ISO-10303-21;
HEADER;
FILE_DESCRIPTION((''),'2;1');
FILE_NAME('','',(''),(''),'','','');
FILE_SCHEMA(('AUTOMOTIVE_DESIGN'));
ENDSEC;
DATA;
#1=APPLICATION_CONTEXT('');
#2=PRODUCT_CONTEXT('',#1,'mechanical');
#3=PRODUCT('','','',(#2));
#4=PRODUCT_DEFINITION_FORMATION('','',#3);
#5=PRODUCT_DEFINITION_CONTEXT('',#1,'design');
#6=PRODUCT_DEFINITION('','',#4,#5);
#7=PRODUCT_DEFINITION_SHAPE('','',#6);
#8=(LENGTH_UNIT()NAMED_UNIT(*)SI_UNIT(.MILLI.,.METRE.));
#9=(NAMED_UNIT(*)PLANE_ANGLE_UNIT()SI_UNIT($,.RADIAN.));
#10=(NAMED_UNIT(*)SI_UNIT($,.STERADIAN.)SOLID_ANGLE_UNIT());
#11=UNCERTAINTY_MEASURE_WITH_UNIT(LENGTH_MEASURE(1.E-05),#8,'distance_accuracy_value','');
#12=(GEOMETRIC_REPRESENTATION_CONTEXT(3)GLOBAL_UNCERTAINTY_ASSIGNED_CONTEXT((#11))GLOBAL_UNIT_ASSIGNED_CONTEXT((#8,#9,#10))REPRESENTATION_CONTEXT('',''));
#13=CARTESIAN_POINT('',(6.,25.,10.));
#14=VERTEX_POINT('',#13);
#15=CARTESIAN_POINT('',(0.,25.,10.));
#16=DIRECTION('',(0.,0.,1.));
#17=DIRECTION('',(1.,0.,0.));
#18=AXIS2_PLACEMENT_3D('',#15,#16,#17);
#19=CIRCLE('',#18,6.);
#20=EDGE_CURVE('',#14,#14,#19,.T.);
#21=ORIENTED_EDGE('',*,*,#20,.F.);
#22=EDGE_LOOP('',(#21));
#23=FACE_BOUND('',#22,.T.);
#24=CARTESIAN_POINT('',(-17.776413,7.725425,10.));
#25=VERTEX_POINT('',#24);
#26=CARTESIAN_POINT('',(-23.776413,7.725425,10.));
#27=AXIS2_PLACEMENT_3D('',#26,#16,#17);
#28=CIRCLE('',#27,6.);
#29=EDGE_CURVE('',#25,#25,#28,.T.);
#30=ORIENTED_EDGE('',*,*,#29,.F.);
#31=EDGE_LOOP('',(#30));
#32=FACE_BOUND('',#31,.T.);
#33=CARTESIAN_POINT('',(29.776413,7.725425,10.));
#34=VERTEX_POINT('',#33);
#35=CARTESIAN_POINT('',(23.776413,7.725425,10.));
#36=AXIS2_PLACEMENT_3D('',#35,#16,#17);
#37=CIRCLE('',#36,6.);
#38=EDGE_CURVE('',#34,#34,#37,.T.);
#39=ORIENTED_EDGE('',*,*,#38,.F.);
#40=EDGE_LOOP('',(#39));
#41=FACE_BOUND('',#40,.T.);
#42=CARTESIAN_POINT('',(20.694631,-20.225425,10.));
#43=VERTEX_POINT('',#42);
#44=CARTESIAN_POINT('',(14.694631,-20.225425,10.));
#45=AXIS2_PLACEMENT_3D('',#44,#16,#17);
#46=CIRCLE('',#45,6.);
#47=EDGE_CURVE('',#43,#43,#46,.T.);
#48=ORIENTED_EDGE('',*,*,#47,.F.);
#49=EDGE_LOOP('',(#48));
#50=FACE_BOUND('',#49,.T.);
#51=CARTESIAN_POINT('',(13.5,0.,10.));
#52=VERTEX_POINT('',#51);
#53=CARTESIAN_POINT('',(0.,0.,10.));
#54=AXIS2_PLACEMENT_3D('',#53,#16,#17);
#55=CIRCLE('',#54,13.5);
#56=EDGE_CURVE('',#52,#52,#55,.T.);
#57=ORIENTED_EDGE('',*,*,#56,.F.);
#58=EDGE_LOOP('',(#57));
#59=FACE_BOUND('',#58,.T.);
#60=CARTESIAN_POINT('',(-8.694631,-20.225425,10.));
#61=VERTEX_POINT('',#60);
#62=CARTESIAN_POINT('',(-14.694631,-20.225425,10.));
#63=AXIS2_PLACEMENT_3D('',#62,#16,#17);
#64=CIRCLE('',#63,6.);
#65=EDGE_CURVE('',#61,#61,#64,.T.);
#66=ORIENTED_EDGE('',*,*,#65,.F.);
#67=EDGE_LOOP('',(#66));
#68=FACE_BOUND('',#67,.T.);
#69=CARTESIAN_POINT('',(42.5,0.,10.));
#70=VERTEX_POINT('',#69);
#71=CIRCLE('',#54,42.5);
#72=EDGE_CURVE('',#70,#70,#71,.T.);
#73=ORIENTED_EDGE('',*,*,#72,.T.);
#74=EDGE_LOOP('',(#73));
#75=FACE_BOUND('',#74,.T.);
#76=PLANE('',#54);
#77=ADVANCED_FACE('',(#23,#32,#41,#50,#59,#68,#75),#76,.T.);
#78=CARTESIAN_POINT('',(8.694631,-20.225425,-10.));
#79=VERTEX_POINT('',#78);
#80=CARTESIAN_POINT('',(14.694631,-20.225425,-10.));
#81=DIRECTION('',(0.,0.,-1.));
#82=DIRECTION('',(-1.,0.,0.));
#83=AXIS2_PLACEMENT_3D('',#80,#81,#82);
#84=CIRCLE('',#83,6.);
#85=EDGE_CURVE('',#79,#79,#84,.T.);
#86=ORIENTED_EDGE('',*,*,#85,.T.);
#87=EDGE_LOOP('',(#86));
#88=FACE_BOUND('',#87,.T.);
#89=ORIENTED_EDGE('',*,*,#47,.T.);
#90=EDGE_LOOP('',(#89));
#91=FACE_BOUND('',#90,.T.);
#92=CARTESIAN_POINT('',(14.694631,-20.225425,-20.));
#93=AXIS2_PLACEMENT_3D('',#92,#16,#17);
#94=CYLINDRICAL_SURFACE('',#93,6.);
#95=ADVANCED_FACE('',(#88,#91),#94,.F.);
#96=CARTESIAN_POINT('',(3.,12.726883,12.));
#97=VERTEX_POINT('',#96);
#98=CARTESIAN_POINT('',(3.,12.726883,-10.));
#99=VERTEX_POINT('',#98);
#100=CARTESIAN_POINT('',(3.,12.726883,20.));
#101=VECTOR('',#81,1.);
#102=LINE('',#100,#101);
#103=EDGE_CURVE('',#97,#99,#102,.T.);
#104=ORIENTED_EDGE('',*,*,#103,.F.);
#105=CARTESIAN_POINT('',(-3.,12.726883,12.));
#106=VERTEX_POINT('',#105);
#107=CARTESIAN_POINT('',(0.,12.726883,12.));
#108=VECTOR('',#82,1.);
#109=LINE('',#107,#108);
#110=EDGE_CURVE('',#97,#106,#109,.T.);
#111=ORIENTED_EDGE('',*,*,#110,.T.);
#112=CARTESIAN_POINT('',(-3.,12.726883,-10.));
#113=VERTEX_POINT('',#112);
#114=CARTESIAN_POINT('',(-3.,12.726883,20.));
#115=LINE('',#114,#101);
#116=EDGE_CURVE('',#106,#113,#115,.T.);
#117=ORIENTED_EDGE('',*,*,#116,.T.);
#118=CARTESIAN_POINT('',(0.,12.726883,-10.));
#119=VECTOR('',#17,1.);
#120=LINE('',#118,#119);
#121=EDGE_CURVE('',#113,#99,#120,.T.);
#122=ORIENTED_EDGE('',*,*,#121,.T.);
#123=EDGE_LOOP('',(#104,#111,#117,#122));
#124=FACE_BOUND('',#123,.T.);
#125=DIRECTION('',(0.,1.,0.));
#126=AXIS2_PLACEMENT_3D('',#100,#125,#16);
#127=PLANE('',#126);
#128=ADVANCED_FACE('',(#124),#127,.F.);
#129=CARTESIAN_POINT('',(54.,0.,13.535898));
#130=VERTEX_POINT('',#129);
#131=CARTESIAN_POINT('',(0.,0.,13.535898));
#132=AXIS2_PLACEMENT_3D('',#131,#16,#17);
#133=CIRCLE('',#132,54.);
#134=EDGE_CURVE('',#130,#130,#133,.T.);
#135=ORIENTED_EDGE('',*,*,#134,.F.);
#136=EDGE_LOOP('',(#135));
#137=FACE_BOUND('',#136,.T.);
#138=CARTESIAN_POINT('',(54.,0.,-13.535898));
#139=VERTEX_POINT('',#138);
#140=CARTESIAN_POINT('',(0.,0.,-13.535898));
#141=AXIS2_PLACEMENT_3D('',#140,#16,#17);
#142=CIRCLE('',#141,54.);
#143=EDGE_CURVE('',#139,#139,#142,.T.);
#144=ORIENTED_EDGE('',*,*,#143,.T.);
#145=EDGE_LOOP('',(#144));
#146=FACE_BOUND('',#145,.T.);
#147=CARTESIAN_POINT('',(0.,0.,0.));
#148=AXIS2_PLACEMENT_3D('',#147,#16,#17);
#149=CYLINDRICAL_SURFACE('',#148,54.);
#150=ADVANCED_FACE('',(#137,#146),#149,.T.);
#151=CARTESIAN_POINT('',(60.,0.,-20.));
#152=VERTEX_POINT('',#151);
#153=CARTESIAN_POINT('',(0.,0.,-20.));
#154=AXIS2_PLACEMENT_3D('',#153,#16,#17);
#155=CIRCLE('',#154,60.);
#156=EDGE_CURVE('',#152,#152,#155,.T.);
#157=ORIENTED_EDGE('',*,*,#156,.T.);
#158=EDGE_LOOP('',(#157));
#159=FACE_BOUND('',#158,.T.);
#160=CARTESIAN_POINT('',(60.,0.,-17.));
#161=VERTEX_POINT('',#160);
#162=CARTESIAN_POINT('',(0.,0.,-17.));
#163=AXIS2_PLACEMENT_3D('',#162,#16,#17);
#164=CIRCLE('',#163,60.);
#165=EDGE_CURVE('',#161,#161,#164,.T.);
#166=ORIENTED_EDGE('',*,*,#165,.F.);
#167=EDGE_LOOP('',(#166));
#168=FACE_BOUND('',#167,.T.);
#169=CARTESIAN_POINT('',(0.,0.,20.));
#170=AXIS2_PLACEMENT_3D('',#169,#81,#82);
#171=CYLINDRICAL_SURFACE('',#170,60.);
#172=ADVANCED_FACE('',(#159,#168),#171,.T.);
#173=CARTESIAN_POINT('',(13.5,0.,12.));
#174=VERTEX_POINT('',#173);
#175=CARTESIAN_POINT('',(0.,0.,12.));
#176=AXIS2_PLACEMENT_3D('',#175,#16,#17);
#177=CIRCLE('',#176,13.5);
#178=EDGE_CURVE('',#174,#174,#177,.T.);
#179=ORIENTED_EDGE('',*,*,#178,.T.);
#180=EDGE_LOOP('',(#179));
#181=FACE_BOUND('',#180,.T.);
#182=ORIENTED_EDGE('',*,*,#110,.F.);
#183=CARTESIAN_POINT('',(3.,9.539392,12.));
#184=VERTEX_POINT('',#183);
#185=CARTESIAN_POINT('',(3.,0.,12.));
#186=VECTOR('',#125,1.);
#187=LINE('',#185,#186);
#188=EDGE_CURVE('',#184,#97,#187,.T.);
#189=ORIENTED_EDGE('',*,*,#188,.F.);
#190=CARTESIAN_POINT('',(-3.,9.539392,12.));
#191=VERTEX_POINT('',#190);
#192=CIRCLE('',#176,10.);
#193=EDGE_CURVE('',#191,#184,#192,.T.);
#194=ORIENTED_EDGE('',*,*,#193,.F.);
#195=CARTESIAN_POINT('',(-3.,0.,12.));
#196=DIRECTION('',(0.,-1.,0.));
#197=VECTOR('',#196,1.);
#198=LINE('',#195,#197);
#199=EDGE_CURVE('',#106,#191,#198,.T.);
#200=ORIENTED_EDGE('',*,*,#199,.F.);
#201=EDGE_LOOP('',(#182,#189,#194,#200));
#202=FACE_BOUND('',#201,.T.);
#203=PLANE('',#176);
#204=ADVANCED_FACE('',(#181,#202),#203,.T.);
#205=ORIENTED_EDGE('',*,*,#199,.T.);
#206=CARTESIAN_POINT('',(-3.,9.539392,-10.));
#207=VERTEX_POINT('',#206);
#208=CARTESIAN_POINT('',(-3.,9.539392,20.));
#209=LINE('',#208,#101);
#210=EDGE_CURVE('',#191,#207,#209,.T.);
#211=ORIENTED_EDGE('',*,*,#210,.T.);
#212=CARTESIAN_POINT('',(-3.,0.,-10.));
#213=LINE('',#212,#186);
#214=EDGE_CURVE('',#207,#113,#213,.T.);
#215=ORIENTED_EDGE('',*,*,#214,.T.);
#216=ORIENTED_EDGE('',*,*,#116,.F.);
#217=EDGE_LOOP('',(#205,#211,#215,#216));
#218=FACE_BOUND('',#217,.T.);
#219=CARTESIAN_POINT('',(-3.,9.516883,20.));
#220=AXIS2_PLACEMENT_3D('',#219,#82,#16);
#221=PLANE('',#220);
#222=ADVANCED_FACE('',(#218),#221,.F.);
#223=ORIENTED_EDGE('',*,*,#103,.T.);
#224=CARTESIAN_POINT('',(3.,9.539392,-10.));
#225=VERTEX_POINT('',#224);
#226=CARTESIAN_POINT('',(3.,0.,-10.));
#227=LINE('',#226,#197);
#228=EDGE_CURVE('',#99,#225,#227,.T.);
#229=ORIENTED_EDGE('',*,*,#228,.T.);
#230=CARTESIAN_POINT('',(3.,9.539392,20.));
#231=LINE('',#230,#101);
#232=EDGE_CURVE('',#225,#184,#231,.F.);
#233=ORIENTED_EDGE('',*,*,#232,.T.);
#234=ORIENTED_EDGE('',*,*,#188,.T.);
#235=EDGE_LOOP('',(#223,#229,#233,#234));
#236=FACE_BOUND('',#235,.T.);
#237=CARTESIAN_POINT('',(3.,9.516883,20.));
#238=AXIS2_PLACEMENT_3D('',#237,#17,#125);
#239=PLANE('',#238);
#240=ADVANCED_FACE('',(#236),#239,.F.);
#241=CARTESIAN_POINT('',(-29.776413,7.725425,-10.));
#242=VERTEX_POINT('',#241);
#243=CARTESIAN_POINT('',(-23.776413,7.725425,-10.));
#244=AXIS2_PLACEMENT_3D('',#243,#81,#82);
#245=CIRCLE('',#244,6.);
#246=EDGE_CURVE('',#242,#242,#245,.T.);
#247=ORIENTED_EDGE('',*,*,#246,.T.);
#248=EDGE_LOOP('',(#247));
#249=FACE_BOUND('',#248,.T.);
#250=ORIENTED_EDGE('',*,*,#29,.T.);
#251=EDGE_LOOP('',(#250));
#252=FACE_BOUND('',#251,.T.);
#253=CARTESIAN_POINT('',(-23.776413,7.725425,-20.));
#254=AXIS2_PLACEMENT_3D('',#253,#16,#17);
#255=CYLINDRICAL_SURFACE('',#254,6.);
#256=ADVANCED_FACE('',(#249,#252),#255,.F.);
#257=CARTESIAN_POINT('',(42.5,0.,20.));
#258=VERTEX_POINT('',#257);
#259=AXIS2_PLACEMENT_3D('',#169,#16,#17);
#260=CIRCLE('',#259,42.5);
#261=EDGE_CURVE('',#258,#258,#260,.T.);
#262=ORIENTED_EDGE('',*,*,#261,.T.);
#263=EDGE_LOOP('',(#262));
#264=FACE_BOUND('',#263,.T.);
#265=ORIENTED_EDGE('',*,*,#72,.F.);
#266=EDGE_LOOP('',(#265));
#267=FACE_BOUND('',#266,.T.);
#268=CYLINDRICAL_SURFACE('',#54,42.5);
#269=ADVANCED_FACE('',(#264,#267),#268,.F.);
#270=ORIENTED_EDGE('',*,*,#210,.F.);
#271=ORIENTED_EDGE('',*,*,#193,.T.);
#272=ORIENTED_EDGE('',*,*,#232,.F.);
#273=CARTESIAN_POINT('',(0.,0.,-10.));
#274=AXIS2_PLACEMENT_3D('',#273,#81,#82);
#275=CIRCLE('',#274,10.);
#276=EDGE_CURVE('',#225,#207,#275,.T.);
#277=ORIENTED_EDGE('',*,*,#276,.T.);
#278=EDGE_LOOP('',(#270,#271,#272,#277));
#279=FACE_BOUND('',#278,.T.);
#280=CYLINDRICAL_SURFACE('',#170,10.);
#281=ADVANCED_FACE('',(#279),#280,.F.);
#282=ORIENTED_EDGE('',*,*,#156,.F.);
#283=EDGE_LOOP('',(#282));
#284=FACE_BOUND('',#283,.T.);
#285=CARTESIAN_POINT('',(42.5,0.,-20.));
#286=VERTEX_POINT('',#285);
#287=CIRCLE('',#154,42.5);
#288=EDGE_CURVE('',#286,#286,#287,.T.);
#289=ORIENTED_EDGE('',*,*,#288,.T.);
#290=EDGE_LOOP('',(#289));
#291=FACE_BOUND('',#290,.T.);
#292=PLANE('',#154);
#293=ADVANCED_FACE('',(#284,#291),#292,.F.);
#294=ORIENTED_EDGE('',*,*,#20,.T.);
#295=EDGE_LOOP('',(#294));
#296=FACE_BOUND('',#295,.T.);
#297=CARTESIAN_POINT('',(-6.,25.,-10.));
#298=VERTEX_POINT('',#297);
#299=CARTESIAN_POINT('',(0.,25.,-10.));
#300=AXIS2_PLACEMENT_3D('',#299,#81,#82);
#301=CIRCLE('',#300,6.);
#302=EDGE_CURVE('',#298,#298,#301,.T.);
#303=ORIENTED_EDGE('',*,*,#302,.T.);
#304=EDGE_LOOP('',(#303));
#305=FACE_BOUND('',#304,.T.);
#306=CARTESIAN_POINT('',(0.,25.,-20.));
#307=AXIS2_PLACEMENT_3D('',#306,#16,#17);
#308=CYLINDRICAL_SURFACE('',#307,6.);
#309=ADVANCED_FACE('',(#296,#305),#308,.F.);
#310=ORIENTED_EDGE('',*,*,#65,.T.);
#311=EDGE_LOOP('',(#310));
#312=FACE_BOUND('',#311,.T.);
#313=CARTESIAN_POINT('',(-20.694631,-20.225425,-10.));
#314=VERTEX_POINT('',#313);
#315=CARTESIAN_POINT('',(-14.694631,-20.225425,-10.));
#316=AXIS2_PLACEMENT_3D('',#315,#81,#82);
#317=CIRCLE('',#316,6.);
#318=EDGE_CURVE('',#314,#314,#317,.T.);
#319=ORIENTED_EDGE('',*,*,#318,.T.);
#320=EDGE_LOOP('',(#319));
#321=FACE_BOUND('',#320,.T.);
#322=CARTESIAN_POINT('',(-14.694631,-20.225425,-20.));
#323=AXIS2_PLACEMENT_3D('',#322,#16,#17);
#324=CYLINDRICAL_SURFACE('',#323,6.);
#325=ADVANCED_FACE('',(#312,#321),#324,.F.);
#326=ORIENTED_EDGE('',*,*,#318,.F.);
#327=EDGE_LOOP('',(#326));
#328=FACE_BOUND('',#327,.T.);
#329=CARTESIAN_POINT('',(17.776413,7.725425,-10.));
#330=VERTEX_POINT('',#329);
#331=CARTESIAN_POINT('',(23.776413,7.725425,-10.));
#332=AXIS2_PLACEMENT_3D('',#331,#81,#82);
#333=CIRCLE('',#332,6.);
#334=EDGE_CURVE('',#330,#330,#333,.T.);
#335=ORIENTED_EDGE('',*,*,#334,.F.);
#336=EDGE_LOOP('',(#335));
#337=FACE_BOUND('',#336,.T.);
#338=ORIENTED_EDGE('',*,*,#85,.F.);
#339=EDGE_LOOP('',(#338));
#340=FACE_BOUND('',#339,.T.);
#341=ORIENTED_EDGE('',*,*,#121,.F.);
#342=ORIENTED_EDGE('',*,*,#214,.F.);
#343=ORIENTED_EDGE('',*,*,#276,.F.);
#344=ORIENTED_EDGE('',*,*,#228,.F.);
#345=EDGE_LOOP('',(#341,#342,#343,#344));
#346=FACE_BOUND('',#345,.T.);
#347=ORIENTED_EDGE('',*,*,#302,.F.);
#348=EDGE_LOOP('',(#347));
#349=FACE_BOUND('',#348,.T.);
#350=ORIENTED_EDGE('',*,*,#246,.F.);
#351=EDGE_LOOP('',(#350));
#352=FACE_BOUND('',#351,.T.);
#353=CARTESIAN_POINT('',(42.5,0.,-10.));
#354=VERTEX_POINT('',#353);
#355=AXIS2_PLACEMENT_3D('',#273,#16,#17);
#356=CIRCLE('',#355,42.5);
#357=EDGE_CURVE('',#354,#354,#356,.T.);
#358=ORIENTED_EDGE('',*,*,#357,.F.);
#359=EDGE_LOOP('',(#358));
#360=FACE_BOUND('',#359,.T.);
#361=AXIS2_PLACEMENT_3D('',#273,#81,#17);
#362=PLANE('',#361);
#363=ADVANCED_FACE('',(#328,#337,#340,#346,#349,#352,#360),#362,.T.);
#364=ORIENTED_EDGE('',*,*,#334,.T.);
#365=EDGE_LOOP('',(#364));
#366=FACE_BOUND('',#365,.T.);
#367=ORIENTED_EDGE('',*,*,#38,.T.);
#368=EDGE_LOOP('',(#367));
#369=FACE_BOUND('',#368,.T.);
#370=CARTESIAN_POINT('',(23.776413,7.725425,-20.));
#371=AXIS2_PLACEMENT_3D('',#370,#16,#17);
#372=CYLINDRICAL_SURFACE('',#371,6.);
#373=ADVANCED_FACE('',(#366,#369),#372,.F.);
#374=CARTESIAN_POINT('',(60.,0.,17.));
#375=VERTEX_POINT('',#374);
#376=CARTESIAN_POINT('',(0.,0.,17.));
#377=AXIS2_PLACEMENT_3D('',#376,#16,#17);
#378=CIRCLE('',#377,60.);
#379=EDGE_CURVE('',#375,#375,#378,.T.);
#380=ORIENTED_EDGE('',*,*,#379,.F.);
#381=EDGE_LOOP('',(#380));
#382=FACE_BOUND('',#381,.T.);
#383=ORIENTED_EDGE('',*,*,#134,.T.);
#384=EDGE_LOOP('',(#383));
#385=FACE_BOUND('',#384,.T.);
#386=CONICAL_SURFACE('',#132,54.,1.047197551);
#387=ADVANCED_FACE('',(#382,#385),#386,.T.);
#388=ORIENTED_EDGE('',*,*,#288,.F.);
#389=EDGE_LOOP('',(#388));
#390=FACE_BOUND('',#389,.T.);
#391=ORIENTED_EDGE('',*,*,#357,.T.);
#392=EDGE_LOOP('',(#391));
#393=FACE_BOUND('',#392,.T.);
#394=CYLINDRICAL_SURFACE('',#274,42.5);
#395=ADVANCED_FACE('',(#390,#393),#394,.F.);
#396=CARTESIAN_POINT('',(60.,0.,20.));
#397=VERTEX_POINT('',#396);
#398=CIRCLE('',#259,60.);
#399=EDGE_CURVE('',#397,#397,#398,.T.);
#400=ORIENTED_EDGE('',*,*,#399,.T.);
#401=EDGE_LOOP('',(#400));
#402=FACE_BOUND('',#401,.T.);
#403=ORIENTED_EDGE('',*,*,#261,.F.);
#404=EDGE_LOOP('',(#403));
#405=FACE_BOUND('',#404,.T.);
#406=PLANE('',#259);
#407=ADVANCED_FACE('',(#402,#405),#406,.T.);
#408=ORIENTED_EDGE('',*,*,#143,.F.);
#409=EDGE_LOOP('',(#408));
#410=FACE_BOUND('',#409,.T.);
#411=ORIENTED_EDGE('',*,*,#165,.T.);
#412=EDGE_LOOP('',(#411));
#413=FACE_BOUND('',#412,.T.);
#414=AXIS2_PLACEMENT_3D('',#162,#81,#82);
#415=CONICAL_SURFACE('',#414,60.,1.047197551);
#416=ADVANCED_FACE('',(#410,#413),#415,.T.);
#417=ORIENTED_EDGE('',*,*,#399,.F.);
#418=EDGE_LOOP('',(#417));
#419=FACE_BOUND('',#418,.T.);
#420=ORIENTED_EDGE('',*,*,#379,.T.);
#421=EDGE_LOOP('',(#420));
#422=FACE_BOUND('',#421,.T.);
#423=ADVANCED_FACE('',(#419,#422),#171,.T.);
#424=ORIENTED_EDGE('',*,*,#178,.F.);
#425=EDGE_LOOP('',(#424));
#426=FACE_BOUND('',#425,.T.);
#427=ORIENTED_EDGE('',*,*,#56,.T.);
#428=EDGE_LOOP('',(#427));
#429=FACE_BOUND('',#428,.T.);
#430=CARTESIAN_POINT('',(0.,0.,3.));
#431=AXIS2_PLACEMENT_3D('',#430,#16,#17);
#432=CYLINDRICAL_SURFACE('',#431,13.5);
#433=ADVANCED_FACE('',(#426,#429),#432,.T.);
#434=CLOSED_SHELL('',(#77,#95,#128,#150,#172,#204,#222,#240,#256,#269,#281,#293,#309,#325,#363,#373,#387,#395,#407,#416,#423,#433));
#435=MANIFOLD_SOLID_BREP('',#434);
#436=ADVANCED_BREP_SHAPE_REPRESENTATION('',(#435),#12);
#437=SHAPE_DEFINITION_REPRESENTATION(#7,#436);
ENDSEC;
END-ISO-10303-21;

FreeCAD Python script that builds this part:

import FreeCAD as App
import Part
import Sketcher
Q = App.Units.Quantity


def add_polygon(sketch, points):
    """Adds a closed chain of lines whose ends are joined by coincident constraints."""
    first, n = sketch.GeometryCount, len(points)
    for a, b in zip(points, points[1:] + points[:1]):
        sketch.addGeometry(Part.LineSegment(App.Vector(*a, 0), App.Vector(*b, 0)), False)
    for i in range(n):
        sketch.addConstraint(Sketcher.Constraint("Coincident", first + i, 2, first + (i + 1) % n, 1))

doc = App.newDocument("Part")
body = doc.addObject("PartDesign::Body", "Body")

# Sketch on XY plane
sketch1 = doc.addObject("Sketcher::SketchObject", "Sketch")
body.addObject(sketch1)
sketch1.AttachmentSupport = (doc.XY_Plane, [""])
sketch1.MapMode = "FlatFace"
sketch1.addGeometry(Part.Circle(App.Vector(0, 0, 0), App.Vector(0, 0, 1), 60), False)
sketch1.addGeometry(Part.Circle(App.Vector(0, 0, 0), App.Vector(0, 0, 1), 10), False)
sketch1.addConstraint(Sketcher.Constraint("Coincident", 0, 3, -1, 1))
sketch1.addConstraint(Sketcher.Constraint("Coincident", 1, 3, -1, 1))
sketch1.addConstraint(Sketcher.Constraint("Diameter", 0, Q("120 mm")))
sketch1.addConstraint(Sketcher.Constraint("Diameter", 1, Q("20 mm")))
pad1 = doc.addObject("PartDesign::Pad", "Pad")
body.addObject(pad1)
pad1.Profile = sketch1
pad1.Length = 40
pad1.Midplane = True

# Sketch on XY plane
sketch2 = doc.addObject("Sketcher::SketchObject", "Sketch001")
body.addObject(sketch2)
sketch2.AttachmentSupport = (doc.XY_Plane, [""])
sketch2.MapMode = "FlatFace"
sketch2.AttachmentOffset = App.Placement(App.Vector(0, 0, 20), App.Rotation())
sketch2.addGeometry(Part.Circle(App.Vector(0, 0, 0), App.Vector(0, 0, 1), 42), False)
sketch2.addConstraint(Sketcher.Constraint("Coincident", 0, 3, -1, 1))
sketch2.addConstraint(Sketcher.Constraint("Diameter", 0, Q("85 mm")))
pocket1 = doc.addObject("PartDesign::Pocket", "Pocket")
body.addObject(pocket1)
pocket1.Profile = sketch2
pocket1.Length = 10
doc.recompute()

mirrored = doc.addObject("PartDesign::Mirrored", "Mirrored")
body.addObject(mirrored)
mirrored.Originals = [pocket1]
mirrored.MirrorPlane = (doc.XY_Plane, [""])
body.Tip = mirrored

# Sketch on XY plane
sketch3 = doc.addObject("Sketcher::SketchObject", "Sketch002")
body.addObject(sketch3)
sketch3.AttachmentSupport = (doc.XY_Plane, [""])
sketch3.MapMode = "FlatFace"
sketch3.AttachmentOffset = App.Placement(App.Vector(0, 0, -21), App.Rotation())
sketch3.addGeometry(Part.Circle(App.Vector(0, 25, 0), App.Vector(0, 0, 1), 6), False)
sketch3.addConstraint(Sketcher.Constraint("PointOnObject", 0, 3, -2))
sketch3.addConstraint(Sketcher.Constraint("Diameter", 0, Q("12 mm")))
sketch3.addConstraint(Sketcher.Constraint("DistanceY", -1, 1, 0, 3, Q("25 mm")))
pocket2 = doc.addObject("PartDesign::Pocket", "Pocket001")
body.addObject(pocket2)
pocket2.Profile = sketch3
pocket2.Length = 42
pocket2.Reversed = True
doc.recompute()

polarpattern = doc.addObject("PartDesign::PolarPattern", "PolarPattern")
body.addObject(polarpattern)
polarpattern.Originals = [pocket2]
polarpattern.Axis = (doc.Z_Axis, [""])
polarpattern.Angle = 360
polarpattern.Occurrences = 5
body.Tip = polarpattern

# Sketch on XZ plane
sketch4 = doc.addObject("Sketcher::SketchObject", "Sketch003")
body.addObject(sketch4)
sketch4.AttachmentSupport = (doc.XZ_Plane, [""])
sketch4.MapMode = "FlatFace"
add_polygon(sketch4, [(60, -17), (54, -14), (54, 14), (60, 17)])  # lines 0-3
sketch4.addConstraint(Sketcher.Constraint("Vertical", 1))
sketch4.addConstraint(Sketcher.Constraint("Vertical", 3))
sketch4.addConstraint(Sketcher.Constraint("Equal", 0, 2))
sketch4.addConstraint(Sketcher.Constraint("DistanceY", 3, 2, 3, 1, Q("34 mm")))
sketch4.addConstraint(Sketcher.Constraint("Angle", 0, Q("150 deg")))
sketch4.addConstraint(Sketcher.Constraint("DistanceX", -1, 1, 0, 2, Q("54 mm")))
sketch4.addConstraint(Sketcher.Constraint("DistanceX", -1, 1, 2, 2, Q("60 mm")))
sketch4.addConstraint(Sketcher.Constraint("DistanceY", -1, 1, 2, 2, Q("17 mm")))
groove = doc.addObject("PartDesign::Groove", "Groove")
body.addObject(groove)
groove.Profile = sketch4
groove.ReferenceAxis = (sketch4, ["V_Axis"])
groove.Angle = 360

# Sketch on XY plane
sketch5 = doc.addObject("Sketcher::SketchObject", "Sketch004")
body.addObject(sketch5)
sketch5.AttachmentSupport = (doc.XY_Plane, [""])
sketch5.MapMode = "FlatFace"
sketch5.AttachmentOffset = App.Placement(App.Vector(0, 0, 10), App.Rotation())
sketch5.addGeometry(Part.Circle(App.Vector(0, 0, 0), App.Vector(0, 0, 1), 14), False)
sketch5.addGeometry(Part.Circle(App.Vector(0, 0, 0), App.Vector(0, 0, 1), 10), False)
sketch5.addConstraint(Sketcher.Constraint("Coincident", 0, 3, -1, 1))
sketch5.addConstraint(Sketcher.Constraint("Coincident", 1, 3, -1, 1))
sketch5.addConstraint(Sketcher.Constraint("Diameter", 0, Q("27 mm")))
sketch5.addConstraint(Sketcher.Constraint("Diameter", 1, Q("20 mm")))
pad2 = doc.addObject("PartDesign::Pad", "Pad001")
body.addObject(pad2)
pad2.Profile = sketch5
pad2.Type = "TwoLengths"
pad2.Length = 2
pad2.Length2 = 7

# Sketch on XY plane
sketch6 = doc.addObject("Sketcher::SketchObject", "Sketch005")
body.addObject(sketch6)
sketch6.AttachmentSupport = (doc.XY_Plane, [""])
sketch6.MapMode = "FlatFace"
sketch6.AttachmentOffset = App.Placement(App.Vector(0, 0, -10), App.Rotation())
add_polygon(sketch6, [(3, 12.7), (3, 9.5), (-3, 9.5), (-3, 12.7)])  # lines 0-3
sketch6.addConstraint(Sketcher.Constraint("Vertical", 0))
sketch6.addConstraint(Sketcher.Constraint("Horizontal", 1))
sketch6.addConstraint(Sketcher.Constraint("Vertical", 2))
sketch6.addConstraint(Sketcher.Constraint("Horizontal", 3))
sketch6.addConstraint(Sketcher.Constraint("DistanceX", 1, 2, 1, 1, Q("6 mm")))
sketch6.addConstraint(Sketcher.Constraint("DistanceX", -1, 1, 0, 2, Q("3 mm")))
sketch6.addConstraint(Sketcher.Constraint("DistanceY", 0, 2, 0, 1, Q("3.21 mm")))
sketch6.addConstraint(Sketcher.Constraint("DistanceY", -1, 1, 0, 2, Q("9.516883 mm")))
pocket3 = doc.addObject("PartDesign::Pocket", "Pocket002")
body.addObject(pocket3)
pocket3.Profile = sketch6
pocket3.Type = "ThroughAll"
pocket3.Midplane = True

doc.recompute()
